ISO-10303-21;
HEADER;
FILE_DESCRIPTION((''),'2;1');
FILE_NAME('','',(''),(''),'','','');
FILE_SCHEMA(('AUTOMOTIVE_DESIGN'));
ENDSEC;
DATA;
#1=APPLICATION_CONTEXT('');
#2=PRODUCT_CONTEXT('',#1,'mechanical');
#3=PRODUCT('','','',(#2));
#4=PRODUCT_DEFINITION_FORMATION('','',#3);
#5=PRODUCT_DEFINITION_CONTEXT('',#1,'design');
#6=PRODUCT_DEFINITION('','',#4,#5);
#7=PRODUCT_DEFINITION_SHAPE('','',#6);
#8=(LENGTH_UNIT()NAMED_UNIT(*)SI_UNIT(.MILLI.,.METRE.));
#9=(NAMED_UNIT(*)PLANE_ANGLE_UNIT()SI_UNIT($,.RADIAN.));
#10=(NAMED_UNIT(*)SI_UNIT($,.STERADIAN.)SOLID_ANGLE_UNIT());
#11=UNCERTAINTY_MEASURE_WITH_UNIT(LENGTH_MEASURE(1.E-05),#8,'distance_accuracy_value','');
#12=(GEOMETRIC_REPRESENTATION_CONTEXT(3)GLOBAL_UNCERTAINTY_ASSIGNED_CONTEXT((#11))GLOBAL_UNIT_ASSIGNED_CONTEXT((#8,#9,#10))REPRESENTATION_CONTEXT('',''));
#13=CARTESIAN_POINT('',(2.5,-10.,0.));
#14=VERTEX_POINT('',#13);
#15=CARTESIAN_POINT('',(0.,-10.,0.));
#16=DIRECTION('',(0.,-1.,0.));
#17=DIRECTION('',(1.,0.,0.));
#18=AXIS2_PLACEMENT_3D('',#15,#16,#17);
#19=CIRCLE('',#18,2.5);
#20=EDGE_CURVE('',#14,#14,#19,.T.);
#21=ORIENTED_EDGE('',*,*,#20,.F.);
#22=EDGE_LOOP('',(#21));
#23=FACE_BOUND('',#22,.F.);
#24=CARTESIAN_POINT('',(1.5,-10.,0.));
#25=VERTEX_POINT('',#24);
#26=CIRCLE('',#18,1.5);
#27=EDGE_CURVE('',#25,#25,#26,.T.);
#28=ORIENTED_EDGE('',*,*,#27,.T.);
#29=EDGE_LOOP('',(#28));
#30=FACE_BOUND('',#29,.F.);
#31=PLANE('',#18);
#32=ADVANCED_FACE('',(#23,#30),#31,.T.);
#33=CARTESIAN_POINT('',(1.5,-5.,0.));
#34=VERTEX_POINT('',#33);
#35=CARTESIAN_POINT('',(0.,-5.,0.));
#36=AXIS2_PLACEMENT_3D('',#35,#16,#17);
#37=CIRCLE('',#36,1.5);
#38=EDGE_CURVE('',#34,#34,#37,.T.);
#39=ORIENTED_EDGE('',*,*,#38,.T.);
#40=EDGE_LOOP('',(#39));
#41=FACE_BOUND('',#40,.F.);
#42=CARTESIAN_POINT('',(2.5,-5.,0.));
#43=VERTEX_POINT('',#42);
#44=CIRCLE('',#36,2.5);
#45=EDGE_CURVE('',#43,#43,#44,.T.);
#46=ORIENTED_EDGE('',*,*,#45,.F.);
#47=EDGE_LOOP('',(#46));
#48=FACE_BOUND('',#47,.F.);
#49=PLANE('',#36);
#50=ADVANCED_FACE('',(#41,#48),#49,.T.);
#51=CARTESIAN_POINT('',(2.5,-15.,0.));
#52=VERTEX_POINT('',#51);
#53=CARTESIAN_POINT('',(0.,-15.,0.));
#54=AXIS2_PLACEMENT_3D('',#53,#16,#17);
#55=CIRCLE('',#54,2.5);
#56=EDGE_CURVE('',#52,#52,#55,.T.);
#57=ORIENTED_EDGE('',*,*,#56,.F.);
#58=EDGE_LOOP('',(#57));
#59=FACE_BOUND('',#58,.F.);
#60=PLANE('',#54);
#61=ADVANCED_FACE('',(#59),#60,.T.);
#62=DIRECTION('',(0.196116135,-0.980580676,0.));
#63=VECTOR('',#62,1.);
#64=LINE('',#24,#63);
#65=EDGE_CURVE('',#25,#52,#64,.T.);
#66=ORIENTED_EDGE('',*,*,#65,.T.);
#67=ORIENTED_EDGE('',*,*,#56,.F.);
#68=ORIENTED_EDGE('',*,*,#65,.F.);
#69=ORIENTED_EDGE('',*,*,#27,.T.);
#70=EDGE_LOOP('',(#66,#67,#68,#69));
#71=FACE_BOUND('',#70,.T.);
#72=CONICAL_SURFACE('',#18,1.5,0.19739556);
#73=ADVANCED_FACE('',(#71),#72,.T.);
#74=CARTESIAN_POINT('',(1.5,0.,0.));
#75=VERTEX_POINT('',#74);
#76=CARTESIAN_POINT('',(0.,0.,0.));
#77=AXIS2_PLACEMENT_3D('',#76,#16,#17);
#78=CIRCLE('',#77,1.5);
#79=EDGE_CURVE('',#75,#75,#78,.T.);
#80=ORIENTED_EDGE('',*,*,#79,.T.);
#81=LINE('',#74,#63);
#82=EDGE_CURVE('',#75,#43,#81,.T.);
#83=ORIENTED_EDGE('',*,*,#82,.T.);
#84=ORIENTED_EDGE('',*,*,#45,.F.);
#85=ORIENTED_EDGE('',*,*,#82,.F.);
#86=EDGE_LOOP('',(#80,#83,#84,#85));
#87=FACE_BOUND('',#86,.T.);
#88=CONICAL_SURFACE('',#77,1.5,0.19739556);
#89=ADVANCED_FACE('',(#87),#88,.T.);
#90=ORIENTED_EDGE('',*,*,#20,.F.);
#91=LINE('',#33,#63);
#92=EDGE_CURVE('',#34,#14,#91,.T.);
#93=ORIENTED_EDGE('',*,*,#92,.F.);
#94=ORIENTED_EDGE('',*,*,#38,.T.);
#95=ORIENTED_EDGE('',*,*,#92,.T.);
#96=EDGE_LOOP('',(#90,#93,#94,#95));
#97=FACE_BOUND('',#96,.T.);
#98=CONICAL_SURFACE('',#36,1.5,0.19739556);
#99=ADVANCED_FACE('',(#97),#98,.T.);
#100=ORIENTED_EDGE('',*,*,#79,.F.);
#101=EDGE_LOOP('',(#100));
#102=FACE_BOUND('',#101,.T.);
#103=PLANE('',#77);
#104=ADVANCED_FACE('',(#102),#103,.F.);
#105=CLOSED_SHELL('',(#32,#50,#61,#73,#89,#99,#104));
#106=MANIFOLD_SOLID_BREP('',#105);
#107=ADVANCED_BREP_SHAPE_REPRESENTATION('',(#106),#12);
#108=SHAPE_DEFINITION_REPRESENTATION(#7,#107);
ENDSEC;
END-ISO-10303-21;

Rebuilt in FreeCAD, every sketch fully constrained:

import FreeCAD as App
import Part
import Sketcher
from FreeCAD import Vector


def add_polygon(sketch, points):
    """Adds a closed chain of lines whose ends are joined by coincident constraints."""
    first, n = sketch.GeometryCount, len(points)
    for a, b in zip(points, points[1:] + points[:1]):
        sketch.addGeometry(Part.LineSegment(App.Vector(*a, 0), App.Vector(*b, 0)), False)
    for i in range(n):
        sketch.addConstraint(Sketcher.Constraint("Coincident", first + i, 2, first + (i + 1) % n, 1))

doc = App.newDocument("Part")
body = doc.addObject("PartDesign::Body", "Body")

# Sketch on XY plane
sketch1 = body.newObject("Sketcher::SketchObject", "Sketch")
sketch1.AttachmentSupport = (doc.getObject("XY_Plane"), [""])
sketch1.MapMode = "FlatFace"
add_polygon(sketch1, [(1.5, 0), (0, 0), (0, -15), (2.5, -15), (1.5, -10), (2.5, -10), (1.5, -5), (2.5, -5)])  # lines 0-7
sketch1.addConstraint(Sketcher.Constraint("Horizontal", 0))
sketch1.addConstraint(Sketcher.Constraint("Vertical", 1))
sketch1.addConstraint(Sketcher.Constraint("Horizontal", 2))
sketch1.addConstraint(Sketcher.Constraint("Horizontal", 4))
sketch1.addConstraint(Sketcher.Constraint("Horizontal", 6))
sketch1.addConstraint(Sketcher.Constraint("Coincident", 0, 2, -1, 1))
sketch1.addConstraint(Sketcher.Constraint("Parallel", 3, 5))
sketch1.addConstraint(Sketcher.Constraint("Parallel", 5, 7))
sketch1.addConstraint(Sketcher.Constraint("Vertical", 2, 2, 4, 2))
sketch1.addConstraint(Sketcher.Constraint("Vertical", 3, 2, 5, 2))
sketch1.addConstraint(Sketcher.Constraint("Vertical", 4, 2, 6, 2))
sketch1.addConstraint(Sketcher.Constraint("Vertical", 5, 2, 7, 2))
sketch1.addConstraint(Sketcher.Constraint("DistanceX", 0, 2, 0, 1, 1.5))
sketch1.addConstraint(Sketcher.Constraint("DistanceY", 5, 2, -1, 1, 5.0))
sketch1.addConstraint(Sketcher.Constraint("DistanceX", 4, 1, 4, 2, 1.0))
revolution = body.newObject("PartDesign::Revolution", "Revolution")
revolution.Profile = sketch1
revolution.ReferenceAxis = (sketch1, ["V_Axis"])
revolution.Angle = 360

doc.recompute()
